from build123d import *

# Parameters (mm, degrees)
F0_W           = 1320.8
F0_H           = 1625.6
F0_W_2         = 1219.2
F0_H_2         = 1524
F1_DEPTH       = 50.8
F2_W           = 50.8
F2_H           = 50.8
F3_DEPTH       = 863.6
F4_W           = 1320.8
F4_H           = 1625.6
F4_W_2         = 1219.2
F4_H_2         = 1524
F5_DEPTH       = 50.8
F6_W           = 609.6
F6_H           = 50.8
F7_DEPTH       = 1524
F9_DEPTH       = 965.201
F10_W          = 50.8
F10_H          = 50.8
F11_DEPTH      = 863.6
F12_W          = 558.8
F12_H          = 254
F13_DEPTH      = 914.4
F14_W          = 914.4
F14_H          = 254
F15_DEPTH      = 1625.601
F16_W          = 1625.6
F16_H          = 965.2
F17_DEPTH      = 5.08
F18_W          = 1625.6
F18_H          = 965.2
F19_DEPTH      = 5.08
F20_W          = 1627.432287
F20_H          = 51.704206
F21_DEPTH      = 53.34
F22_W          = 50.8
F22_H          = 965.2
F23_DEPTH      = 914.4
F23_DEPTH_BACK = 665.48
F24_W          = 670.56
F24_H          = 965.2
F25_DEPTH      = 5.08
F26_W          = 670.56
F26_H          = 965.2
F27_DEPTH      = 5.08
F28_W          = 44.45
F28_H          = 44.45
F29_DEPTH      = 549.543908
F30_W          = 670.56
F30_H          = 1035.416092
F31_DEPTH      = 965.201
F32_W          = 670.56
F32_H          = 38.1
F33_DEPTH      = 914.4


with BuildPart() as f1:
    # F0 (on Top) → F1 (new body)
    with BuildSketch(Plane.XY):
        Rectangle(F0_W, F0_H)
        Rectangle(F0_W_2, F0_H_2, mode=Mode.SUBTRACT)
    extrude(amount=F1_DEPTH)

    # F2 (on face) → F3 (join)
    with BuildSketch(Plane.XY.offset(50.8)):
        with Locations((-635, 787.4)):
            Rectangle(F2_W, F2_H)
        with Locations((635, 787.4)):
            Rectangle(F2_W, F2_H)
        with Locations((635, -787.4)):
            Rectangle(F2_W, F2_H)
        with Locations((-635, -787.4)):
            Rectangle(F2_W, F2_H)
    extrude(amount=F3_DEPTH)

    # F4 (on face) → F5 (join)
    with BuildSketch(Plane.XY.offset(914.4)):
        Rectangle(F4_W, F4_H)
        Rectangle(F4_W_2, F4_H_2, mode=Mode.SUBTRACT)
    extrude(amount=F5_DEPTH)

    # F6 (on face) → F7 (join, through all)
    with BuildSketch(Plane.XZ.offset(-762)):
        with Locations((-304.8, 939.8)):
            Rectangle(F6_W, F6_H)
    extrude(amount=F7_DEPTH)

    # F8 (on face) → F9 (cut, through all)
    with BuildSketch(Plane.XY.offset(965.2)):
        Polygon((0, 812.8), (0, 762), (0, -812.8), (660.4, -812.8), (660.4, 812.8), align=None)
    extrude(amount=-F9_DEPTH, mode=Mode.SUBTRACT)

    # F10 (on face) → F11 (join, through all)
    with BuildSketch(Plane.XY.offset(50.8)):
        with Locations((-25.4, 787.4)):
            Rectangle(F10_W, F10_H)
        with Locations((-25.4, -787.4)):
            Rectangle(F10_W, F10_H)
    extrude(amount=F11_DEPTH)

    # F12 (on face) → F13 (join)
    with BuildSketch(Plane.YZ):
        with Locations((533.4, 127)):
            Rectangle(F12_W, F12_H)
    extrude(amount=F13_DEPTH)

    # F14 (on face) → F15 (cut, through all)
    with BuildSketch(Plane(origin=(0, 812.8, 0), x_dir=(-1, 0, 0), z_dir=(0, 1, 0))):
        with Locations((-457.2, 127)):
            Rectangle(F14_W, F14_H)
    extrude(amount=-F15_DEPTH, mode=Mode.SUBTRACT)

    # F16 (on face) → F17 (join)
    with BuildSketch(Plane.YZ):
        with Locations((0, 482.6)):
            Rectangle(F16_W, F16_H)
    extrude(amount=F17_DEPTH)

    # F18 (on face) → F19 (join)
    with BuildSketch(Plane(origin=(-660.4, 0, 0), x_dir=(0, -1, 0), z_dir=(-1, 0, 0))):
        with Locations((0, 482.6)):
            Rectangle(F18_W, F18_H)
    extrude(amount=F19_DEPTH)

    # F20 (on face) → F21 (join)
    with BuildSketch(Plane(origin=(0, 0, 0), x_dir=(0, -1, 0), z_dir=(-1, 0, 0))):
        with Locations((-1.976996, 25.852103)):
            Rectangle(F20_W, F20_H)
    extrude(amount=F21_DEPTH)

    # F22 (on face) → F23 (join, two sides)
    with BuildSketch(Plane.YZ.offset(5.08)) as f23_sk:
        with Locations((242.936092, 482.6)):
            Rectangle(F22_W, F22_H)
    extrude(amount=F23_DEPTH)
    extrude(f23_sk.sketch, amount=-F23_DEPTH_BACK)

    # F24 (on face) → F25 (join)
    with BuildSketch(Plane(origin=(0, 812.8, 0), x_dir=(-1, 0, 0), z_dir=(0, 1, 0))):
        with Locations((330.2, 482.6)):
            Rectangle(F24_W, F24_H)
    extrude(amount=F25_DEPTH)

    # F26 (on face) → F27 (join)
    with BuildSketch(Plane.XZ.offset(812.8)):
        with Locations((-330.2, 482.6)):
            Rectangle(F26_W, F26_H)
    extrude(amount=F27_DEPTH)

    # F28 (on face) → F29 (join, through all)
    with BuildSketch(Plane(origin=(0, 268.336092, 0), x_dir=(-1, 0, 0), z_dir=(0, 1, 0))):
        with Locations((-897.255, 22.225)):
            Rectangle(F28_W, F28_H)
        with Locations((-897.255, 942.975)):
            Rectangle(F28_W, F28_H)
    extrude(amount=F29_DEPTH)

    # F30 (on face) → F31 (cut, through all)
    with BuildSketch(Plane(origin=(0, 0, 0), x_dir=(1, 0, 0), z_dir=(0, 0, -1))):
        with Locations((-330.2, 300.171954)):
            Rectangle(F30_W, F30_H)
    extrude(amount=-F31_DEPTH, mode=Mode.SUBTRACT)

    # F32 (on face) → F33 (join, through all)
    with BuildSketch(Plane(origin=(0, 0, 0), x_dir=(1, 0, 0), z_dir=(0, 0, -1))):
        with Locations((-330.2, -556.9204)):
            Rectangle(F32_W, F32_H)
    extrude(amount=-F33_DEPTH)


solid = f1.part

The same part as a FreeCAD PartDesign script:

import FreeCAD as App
import Part
import Sketcher

V = App.Vector
Q = App.Units.Quantity

doc = App.newDocument("Part")
body = doc.addObject("PartDesign::Body", "Body")

sketch1 = body.newObject("Sketcher::SketchObject", "Sketch")
sketch1.AttachmentSupport = (doc.getObject("XY_Plane"), [""])
sketch1.MapMode = "FlatFace"
sketch1.addGeometry([
    Part.LineSegment(V(-660, 813, 0), V(-660, -813, 0)),
    Part.LineSegment(V(-660, -813, 0), V(660, -813, 0)),
    Part.LineSegment(V(660, -813, 0), V(660, 813, 0)),
    Part.LineSegment(V(660, 813, 0), V(-660, 813, 0)),
    Part.LineSegment(V(610, -762, 0), V(-610, -762, 0)),
    Part.LineSegment(V(-610, -762, 0), V(-610, 762, 0)),
    Part.LineSegment(V(-610, 762, 0), V(610, 762, 0)),
    Part.LineSegment(V(610, 762, 0), V(610, -762, 0)),
], False)
sketch1.addConstraint([
    Sketcher.Constraint("Coincident", 0, 2, 1, 1),
    Sketcher.Constraint("Coincident", 1, 2, 2, 1),
    Sketcher.Constraint("Coincident", 2, 2, 3, 1),
    Sketcher.Constraint("Coincident", 3, 2, 0, 1),
    Sketcher.Constraint("Coincident", 4, 2, 5, 1),
    Sketcher.Constraint("Coincident", 5, 2, 6, 1),
    Sketcher.Constraint("Coincident", 6, 2, 7, 1),
    Sketcher.Constraint("Coincident", 7, 2, 4, 1),
    Sketcher.Constraint("Vertical", 0),
    Sketcher.Constraint("Horizontal", 1),
    Sketcher.Constraint("Vertical", 2),
    Sketcher.Constraint("Horizontal", 3),
    Sketcher.Constraint("Horizontal", 4),
    Sketcher.Constraint("Vertical", 5),
    Sketcher.Constraint("Horizontal", 6),
    Sketcher.Constraint("Vertical", 7),
    Sketcher.Constraint("Symmetric", 0, 2, 2, 2, -1, 1),
    Sketcher.Constraint("Symmetric", 4, 2, 6, 2, -1, 1),
    Sketcher.Constraint("DistanceX", 1, 1, 1, 2, Q("52 in")),
    Sketcher.Constraint("DistanceX", 4, 2, 4, 1, Q("48 in")),
    Sketcher.Constraint("DistanceY", 0, 2, 0, 1, Q("64 in")),
    Sketcher.Constraint("DistanceY", 5, 1, 5, 2, Q("60 in")),
])
pad1 = body.newObject("PartDesign::Pad", "Pad")
pad1.Profile = sketch1
pad1.Length = Q("2 in")

sketch2 = body.newObject("Sketcher::SketchObject", "Sketch001")
sketch2.AttachmentSupport = (doc.getObject("XY_Plane"), [""])
sketch2.MapMode = "FlatFace"
sketch2.AttachmentOffset = App.Placement(V(0, 0, 2 * 25.4), App.Rotation())
sketch2.addGeometry([
    Part.LineSegment(V(-660, 813, 0), V(-660, 762, 0)),
    Part.LineSegment(V(-660, 762, 0), V(-610, 762, 0)),
    Part.LineSegment(V(-610, 762, 0), V(-610, 813, 0)),
    Part.LineSegment(V(-610, 813, 0), V(-660, 813, 0)),
    Part.LineSegment(V(610, 813, 0), V(610, 762, 0)),
    Part.LineSegment(V(610, 762, 0), V(660, 762, 0)),
    Part.LineSegment(V(660, 762, 0), V(660, 813, 0)),
    Part.LineSegment(V(660, 813, 0), V(610, 813, 0)),
    Part.LineSegment(V(610, -762, 0), V(610, -813, 0)),
    Part.LineSegment(V(610, -813, 0), V(660, -813, 0)),
    Part.LineSegment(V(660, -813, 0), V(660, -762, 0)),
    Part.LineSegment(V(660, -762, 0), V(610, -762, 0)),
    Part.LineSegment(V(-660, -762, 0), V(-660, -813, 0)),
    Part.LineSegment(V(-660, -813, 0), V(-610, -813, 0)),
    Part.LineSegment(V(-610, -813, 0), V(-610, -762, 0)),
    Part.LineSegment(V(-610, -762, 0), V(-660, -762, 0)),
], False)
sketch2.addConstraint([
    Sketcher.Constraint("Coincident", 0, 2, 1, 1),
    Sketcher.Constraint("Coincident", 1, 2, 2, 1),
    Sketcher.Constraint("Coincident", 2, 2, 3, 1),
    Sketcher.Constraint("Coincident", 3, 2, 0, 1),
    Sketcher.Constraint("Coincident", 4, 2, 5, 1),
    Sketcher.Constraint("Coincident", 5, 2, 6, 1),
    Sketcher.Constraint("Coincident", 6, 2, 7, 1),
    Sketcher.Constraint("Coincident", 7, 2, 4, 1),
    Sketcher.Constraint("Coincident", 8, 2, 9, 1),
    Sketcher.Constraint("Coincident", 9, 2, 10, 1),
    Sketcher.Constraint("Coincident", 10, 2, 11, 1),
    Sketcher.Constraint("Coincident", 11, 2, 8, 1),
    Sketcher.Constraint("Coincident", 12, 2, 13, 1),
    Sketcher.Constraint("Coincident", 13, 2, 14, 1),
    Sketcher.Constraint("Coincident", 14, 2, 15, 1),
    Sketcher.Constraint("Coincident", 15, 2, 12, 1),
    Sketcher.Constraint("Vertical", 0),
    Sketcher.Constraint("Horizontal", 1),
    Sketcher.Constraint("Vertical", 2),
    Sketcher.Constraint("Horizontal", 3),
    Sketcher.Constraint("Vertical", 4),
    Sketcher.Constraint("Horizontal", 5),
    Sketcher.Constraint("Vertical", 6),
    Sketcher.Constraint("Horizontal", 7),
    Sketcher.Constraint("Vertical", 8),
    Sketcher.Constraint("Horizontal", 9),
    Sketcher.Constraint("Vertical", 10),
    Sketcher.Constraint("Horizontal", 11),
    Sketcher.Constraint("Vertical", 12),
    Sketcher.Constraint("Horizontal", 13),
    Sketcher.Constraint("Vertical", 14),
    Sketcher.Constraint("Horizontal", 15),
    Sketcher.Constraint("Symmetric", 2, 2, 8, 2, -1, 1),
    Sketcher.Constraint("Symmetric", 0, 2, 10, 2, -1, 1),
    Sketcher.Constraint("Symmetric", 6, 2, 12, 2, -1, 1),
    Sketcher.Constraint("Symmetric", 4, 2, 14, 2, -1, 1),
    Sketcher.Constraint("Symmetric", 1, 2, 4, 2, -2),
    Sketcher.Constraint("Symmetric", 3, 2, 6, 2, -2),
    Sketcher.Constraint("Equal", 15, 0),
    Sketcher.Constraint("DistanceX", 1, 1, 1, 2, Q("2 in")),
    Sketcher.Constraint("DistanceX", 0, 2, -1, 1, Q("26 in")),
    Sketcher.Constraint("DistanceY", -1, 1, 0, 2, Q("30 in")),
])
pad2 = body.newObject("PartDesign::Pad", "Pad001")
pad2.Profile = sketch2
pad2.Length = Q("34 in")

sketch3 = body.newObject("Sketcher::SketchObject", "Sketch002")
sketch3.AttachmentSupport = (doc.getObject("XY_Plane"), [""])
sketch3.MapMode = "FlatFace"
sketch3.AttachmentOffset = App.Placement(V(0, 0, 36 * 25.4), App.Rotation())
sketch3.addGeometry([
    Part.LineSegment(V(-660, 813, 0), V(-660, -813, 0)),
    Part.LineSegment(V(-660, -813, 0), V(660, -813, 0)),
    Part.LineSegment(V(660, -813, 0), V(660, 813, 0)),
    Part.LineSegment(V(660, 813, 0), V(-660, 813, 0)),
    Part.LineSegment(V(610, -762, 0), V(-610, -762, 0)),
    Part.LineSegment(V(-610, -762, 0), V(-610, 762, 0)),
    Part.LineSegment(V(-610, 762, 0), V(610, 762, 0)),
    Part.LineSegment(V(610, 762, 0), V(610, -762, 0)),
], False)
sketch3.addConstraint([
    Sketcher.Constraint("Coincident", 0, 2, 1, 1),
    Sketcher.Constraint("Coincident", 1, 2, 2, 1),
    Sketcher.Constraint("Coincident", 2, 2, 3, 1),
    Sketcher.Constraint("Coincident", 3, 2, 0, 1),
    Sketcher.Constraint("Coincident", 4, 2, 5, 1),
    Sketcher.Constraint("Coincident", 5, 2, 6, 1),
    Sketcher.Constraint("Coincident", 6, 2, 7, 1),
    Sketcher.Constraint("Coincident", 7, 2, 4, 1),
    Sketcher.Constraint("Vertical", 0),
    Sketcher.Constraint("Horizontal", 1),
    Sketcher.Constraint("Vertical", 2),
    Sketcher.Constraint("Horizontal", 3),
    Sketcher.Constraint("Horizontal", 4),
    Sketcher.Constraint("Vertical", 5),
    Sketcher.Constraint("Horizontal", 6),
    Sketcher.Constraint("Vertical", 7),
    Sketcher.Constraint("Symmetric", 0, 2, 2, 2, -1, 1),
    Sketcher.Constraint("Symmetric", 4, 2, 6, 2, -1, 1),
    Sketcher.Constraint("DistanceX", 1, 1, 1, 2, Q("52 in")),
    Sketcher.Constraint("DistanceX", 4, 2, 4, 1, Q("48 in")),
    Sketcher.Constraint("DistanceY", 0, 2, 0, 1, Q("64 in")),
    Sketcher.Constraint("DistanceY", 5, 1, 5, 2, Q("60 in")),
])
pad3 = body.newObject("PartDesign::Pad", "Pad002")
pad3.Profile = sketch3
pad3.Length = Q("2 in")

sketch4 = body.newObject("Sketcher::SketchObject", "Sketch003")
sketch4.AttachmentSupport = (doc.getObject("XZ_Plane"), [""])
sketch4.MapMode = "FlatFace"
sketch4.AttachmentOffset = App.Placement(V(0, 0, -30 * 25.4), App.Rotation())
sketch4.addGeometry([
    Part.LineSegment(V(-610, 965, 0), V(-610, 914, 0)),
    Part.LineSegment(V(-610, 914, 0), V(0, 914, 0)),
    Part.LineSegment(V(0, 914, 0), V(0, 965, 0)),
    Part.LineSegment(V(0, 965, 0), V(-610, 965, 0)),
], False)
sketch4.addConstraint([
    Sketcher.Constraint("Coincident", 0, 2, 1, 1),
    Sketcher.Constraint("Coincident", 1, 2, 2, 1),
    Sketcher.Constraint("Coincident", 2, 2, 3, 1),
    Sketcher.Constraint("Coincident", 3, 2, 0, 1),
    Sketcher.Constraint("Vertical", 0),
    Sketcher.Constraint("Horizontal", 1),
    Sketcher.Constraint("Vertical", 2),
    Sketcher.Constraint("Horizontal", 3),
    Sketcher.Constraint("PointOnObject", 1, 2, -2),
    Sketcher.Constraint("DistanceX", 1, 1, 1, 2, Q("24 in")),
    Sketcher.Constraint("DistanceY", 0, 2, 0, 1, Q("2 in")),
    Sketcher.Constraint("DistanceY", -1, 1, 0, 2, Q("36 in")),
])
pad4 = body.newObject("PartDesign::Pad", "Pad003")
pad4.Profile = sketch4
pad4.Type = "UpToLast"

sketch5 = body.newObject("Sketcher::SketchObject", "Sketch004")
sketch5.AttachmentSupport = (doc.getObject("XY_Plane"), [""])
sketch5.MapMode = "FlatFace"
sketch5.AttachmentOffset = App.Placement(V(0, 0, 38 * 25.4), App.Rotation())
sketch5.addGeometry([
    Part.LineSegment(V(0, 813, 0), V(0, -813, 0)),
    Part.LineSegment(V(0, -813, 0), V(660, -813, 0)),
    Part.LineSegment(V(660, -813, 0), V(660, 813, 0)),
    Part.LineSegment(V(660, 813, 0), V(0, 813, 0)),
], False)
sketch5.addConstraint([
    Sketcher.Constraint("Coincident", 0, 2, 1, 1),
    Sketcher.Constraint("Coincident", 1, 2, 2, 1),
    Sketcher.Constraint("Coincident", 2, 2, 3, 1),
    Sketcher.Constraint("Coincident", 3, 2, 0, 1),
    Sketcher.Constraint("Vertical", 0),
    Sketcher.Constraint("Horizontal", 1),
    Sketcher.Constraint("Vertical", 2),
    Sketcher.Constraint("Horizontal", 3),
    Sketcher.Constraint("Symmetric", 0, 2, 3, 2, -1, 1),
    Sketcher.Constraint("DistanceX", 1, 1, 1, 2, Q("26 in")),
    Sketcher.Constraint("DistanceY", 0, 2, 0, 1, Q("64 in")),
])
pocket1 = body.newObject("PartDesign::Pocket", "Pocket")
pocket1.Profile = sketch5
pocket1.Type = "ThroughAll"

sketch6 = body.newObject("Sketcher::SketchObject", "Sketch005")
sketch6.AttachmentSupport = (doc.getObject("XY_Plane"), [""])
sketch6.MapMode = "FlatFace"
sketch6.AttachmentOffset = App.Placement(V(0, 0, 2 * 25.4), App.Rotation())
sketch6.addGeometry([
    Part.LineSegment(V(-51, 813, 0), V(-51, 762, 0)),
    Part.LineSegment(V(-51, 762, 0), V(0, 762, 0)),
    Part.LineSegment(V(0, 762, 0), V(0, 813, 0)),
    Part.LineSegment(V(0, 813, 0), V(-51, 813, 0)),
    Part.LineSegment(V(-51, -762, 0), V(-51, -813, 0)),
    Part.LineSegment(V(-51, -813, 0), V(0, -813, 0)),
    Part.LineSegment(V(0, -813, 0), V(0, -762, 0)),
    Part.LineSegment(V(0, -762, 0), V(-51, -762, 0)),
], False)
sketch6.addConstraint([
    Sketcher.Constraint("Coincident", 0, 2, 1, 1),
    Sketcher.Constraint("Coincident", 1, 2, 2, 1),
    Sketcher.Constraint("Coincident", 2, 2, 3, 1),
    Sketcher.Constraint("Coincident", 3, 2, 0, 1),
    Sketcher.Constraint("Coincident", 4, 2, 5, 1),
    Sketcher.Constraint("Coincident", 5, 2, 6, 1),
    Sketcher.Constraint("Coincident", 6, 2, 7, 1),
    Sketcher.Constraint("Coincident", 7, 2, 4, 1),
    Sketcher.Constraint("Vertical", 0),
    Sketcher.Constraint("Horizontal", 1),
    Sketcher.Constraint("Vertical", 2),
    Sketcher.Constraint("Horizontal", 3),
    Sketcher.Constraint("Vertical", 4),
    Sketcher.Constraint("Horizontal", 5),
    Sketcher.Constraint("Vertical", 6),
    Sketcher.Constraint("Horizontal", 7),
    Sketcher.Constraint("Symmetric", 2, 2, 5, 2, -1, 1),
    Sketcher.Constraint("Symmetric", 1, 2, 6, 2, -1),
    Sketcher.Constraint("Vertical", 3, 2, 4, 2),
    Sketcher.Constraint("Equal", 7, 0),
    Sketcher.Constraint("DistanceX", 1, 1, 1, 2, Q("2 in")),
    Sketcher.Constraint("DistanceY", -1, 1, 0, 2, Q("30 in")),
])
pad5 = body.newObject("PartDesign::Pad", "Pad004")
pad5.Profile = sketch6
pad5.Type = "UpToLast"

sketch7 = body.newObject("Sketcher::SketchObject", "Sketch006")
sketch7.AttachmentSupport = (doc.getObject("YZ_Plane"), [""])
sketch7.MapMode = "FlatFace"
sketch7.addGeometry([
    Part.LineSegment(V(254, 254, 0), V(254, 0, 0)),
    Part.LineSegment(V(254, 0, 0), V(813, 0, 0)),
    Part.LineSegment(V(813, 0, 0), V(813, 254, 0)),
    Part.LineSegment(V(813, 254, 0), V(254, 254, 0)),
], False)
sketch7.addConstraint([
    Sketcher.Constraint("Coincident", 0, 2, 1, 1),
    Sketcher.Constraint("Coincident", 1, 2, 2, 1),
    Sketcher.Constraint("Coincident", 2, 2, 3, 1),
    Sketcher.Constraint("Coincident", 3, 2, 0, 1),
    Sketcher.Constraint("Vertical", 0),
    Sketcher.Constraint("Horizontal", 1),
    Sketcher.Constraint("Vertical", 2),
    Sketcher.Constraint("Horizontal", 3),
    Sketcher.Constraint("PointOnObject", 0, 2, -1),
    Sketcher.Constraint("DistanceX", 1, 1, 1, 2, Q("22 in")),
    Sketcher.Constraint("DistanceY", 0, 2, 0, 1, Q("10 in")),
    Sketcher.Constraint("DistanceX", -1, 1, 0, 2, Q("10 in")),
])
pad6 = body.newObject("PartDesign::Pad", "Pad005")
pad6.Profile = sketch7
pad6.Length = Q("36 in")

sketch8 = body.newObject("Sketcher::SketchObject", "Sketch007")
sketch8.AttachmentSupport = (doc.getObject("XZ_Plane"), [""])
sketch8.MapMode = "FlatFace"
sketch8.AttachmentOffset = App.Placement(V(0, 0, -32 * 25.4), App.Rotation())
sketch8.addGeometry([
    Part.LineSegment(V(914, 254, 0), V(914, 0, 0)),
    Part.LineSegment(V(914, 0, 0), V(0, 0, 0)),
    Part.LineSegment(V(0, 0, 0), V(0, 254, 0)),
    Part.LineSegment(V(0, 254, 0), V(914, 254, 0)),
], False)
sketch8.addConstraint([
    Sketcher.Constraint("Coincident", 0, 2, 1, 1),
    Sketcher.Constraint("Coincident", 1, 2, 2, 1),
    Sketcher.Constraint("Coincident", 2, 2, 3, 1),
    Sketcher.Constraint("Coincident", 3, 2, 0, 1),
    Sketcher.Constraint("Vertical", 0),
    Sketcher.Constraint("Horizontal", 1),
    Sketcher.Constraint("Vertical", 2),
    Sketcher.Constraint("Horizontal", 3),
    Sketcher.Constraint("Coincident", 1, 2, -1, 1),
    Sketcher.Constraint("DistanceX", 1, 2, 1, 1, Q("36 in")),
    Sketcher.Constraint("DistanceY", 0, 2, 0, 1, Q("10 in")),
])
pocket2 = body.newObject("PartDesign::Pocket", "Pocket001")
pocket2.Profile = sketch8
pocket2.Type = "ThroughAll"
pocket2.Reversed = True

sketch9 = body.newObject("Sketcher::SketchObject", "Sketch008")
sketch9.AttachmentSupport = (doc.getObject("YZ_Plane"), [""])
sketch9.MapMode = "FlatFace"
sketch9.addGeometry([
    Part.LineSegment(V(-813, 965, 0), V(-813, 0, 0)),
    Part.LineSegment(V(-813, 0, 0), V(813, 0, 0)),
    Part.LineSegment(V(813, 0, 0), V(813, 965, 0)),
    Part.LineSegment(V(813, 965, 0), V(-813, 965, 0)),
], False)
sketch9.addConstraint([
    Sketcher.Constraint("Coincident", 0, 2, 1, 1),
    Sketcher.Constraint("Coincident", 1, 2, 2, 1),
    Sketcher.Constraint("Coincident", 2, 2, 3, 1),
    Sketcher.Constraint("Coincident", 3, 2, 0, 1),
    Sketcher.Constraint("Vertical", 0),
    Sketcher.Constraint("Horizontal", 1),
    Sketcher.Constraint("Vertical", 2),
    Sketcher.Constraint("Horizontal", 3),
    Sketcher.Constraint("Symmetric", 0, 2, 1, 2, -1, 1),
    Sketcher.Constraint("DistanceX", 1, 1, 1, 2, Q("64 in")),
    Sketcher.Constraint("DistanceY", 0, 2, 0, 1, Q("38 in")),
])
pad7 = body.newObject("PartDesign::Pad", "Pad006")
pad7.Profile = sketch9
pad7.Length = Q("0.2 in")

sketch10 = body.newObject("Sketcher::SketchObject", "Sketch009")
sketch10.AttachmentSupport = (doc.getObject("YZ_Plane"), [""])
sketch10.MapMode = "FlatFace"
sketch10.AttachmentOffset = App.Placement(V(0, 0, -26 * 25.4), App.Rotation())
sketch10.addGeometry([
    Part.LineSegment(V(813, 965, 0), V(813, 0, 0)),
    Part.LineSegment(V(813, 0, 0), V(-813, 0, 0)),
    Part.LineSegment(V(-813, 0, 0), V(-813, 965, 0)),
    Part.LineSegment(V(-813, 965, 0), V(813, 965, 0)),
], False)
sketch10.addConstraint([
    Sketcher.Constraint("Coincident", 0, 2, 1, 1),
    Sketcher.Constraint("Coincident", 1, 2, 2, 1),
    Sketcher.Constraint("Coincident", 2, 2, 3, 1),
    Sketcher.Constraint("Coincident", 3, 2, 0, 1),
    Sketcher.Constraint("Vertical", 0),
    Sketcher.Constraint("Horizontal", 1),
    Sketcher.Constraint("Vertical", 2),
    Sketcher.Constraint("Horizontal", 3),
    Sketcher.Constraint("Symmetric", 0, 2, 1, 2, -1, 1),
    Sketcher.Constraint("DistanceX", 1, 2, 1, 1, Q("64 in")),
    Sketcher.Constraint("DistanceY", 0, 2, 0, 1, Q("38 in")),
])
pad8 = body.newObject("PartDesign::Pad", "Pad007")
pad8.Profile = sketch10
pad8.Length = Q("0.2 in")
pad8.Reversed = True

sketch11 = body.newObject("Sketcher::SketchObject", "Sketch010")
sketch11.AttachmentSupport = (doc.getObject("YZ_Plane"), [""])
sketch11.MapMode = "FlatFace"
sketch11.addGeometry([
    Part.LineSegment(V(816, 52, 0), V(816, 0, 0)),
    Part.LineSegment(V(816, 0, 0), V(-812, 0, 0)),
    Part.LineSegment(V(-812, 0, 0), V(-812, 52, 0)),
    Part.LineSegment(V(-812, 52, 0), V(816, 52, 0)),
], False)
sketch11.addConstraint([
    Sketcher.Constraint("Coincident", 0, 2, 1, 1),
    Sketcher.Constraint("Coincident", 1, 2, 2, 1),
    Sketcher.Constraint("Coincident", 2, 2, 3, 1),
    Sketcher.Constraint("Coincident", 3, 2, 0, 1),
    Sketcher.Constraint("Vertical", 0),
    Sketcher.Constraint("Horizontal", 1),
    Sketcher.Constraint("Vertical", 2),
    Sketcher.Constraint("Horizontal", 3),
    Sketcher.Constraint("PointOnObject", 0, 2, -1),
    Sketcher.Constraint("DistanceX", 1, 2, 1, 1, 1627.432287),
    Sketcher.Constraint("DistanceY", 0, 2, 0, 1, 51.704206),
    Sketcher.Constraint("DistanceX", -1, 1, 0, 2, 815.69314),
])
pad9 = body.newObject("PartDesign::Pad", "Pad008")
pad9.Profile = sketch11
pad9.Length = Q("2.1 in")
pad9.Reversed = True

sketch12 = body.newObject("Sketcher::SketchObject", "Sketch011")
sketch12.AttachmentSupport = (doc.getObject("YZ_Plane"), [""])
sketch12.MapMode = "FlatFace"
sketch12.AttachmentOffset = App.Placement(V(0, 0, 0.2 * 25.4), App.Rotation())
sketch12.addGeometry([
    Part.LineSegment(V(218, 965, 0), V(218, 0, 0)),
    Part.LineSegment(V(218, 0, 0), V(268, 0, 0)),
    Part.LineSegment(V(268, 0, 0), V(268, 965, 0)),
    Part.LineSegment(V(268, 965, 0), V(218, 965, 0)),
], False)
sketch12.addConstraint([
    Sketcher.Constraint("Coincident", 0, 2, 1, 1),
    Sketcher.Constraint("Coincident", 1, 2, 2, 1),
    Sketcher.Constraint("Coincident", 2, 2, 3, 1),
    Sketcher.Constraint("Coincident", 3, 2, 0, 1),
    Sketcher.Constraint("Vertical", 0),
    Sketcher.Constraint("Horizontal", 1),
    Sketcher.Constraint("Vertical", 2),
    Sketcher.Constraint("Horizontal", 3),
    Sketcher.Constraint("PointOnObject", 0, 2, -1),
    Sketcher.Constraint("DistanceX", 1, 1, 1, 2, Q("2 in")),
    Sketcher.Constraint("DistanceY", 0, 2, 0, 1, Q("38 in")),
    Sketcher.Constraint("DistanceX", -1, 1, 0, 2, 217.536092),
])
pad10 = body.newObject("PartDesign::Pad", "Pad009")
pad10.Profile = sketch12
pad10.Type = "TwoLengths"
pad10.Length = Q("36 in")
pad10.Length2 = Q("26.2 in")

sketch13 = body.newObject("Sketcher::SketchObject", "Sketch012")
sketch13.AttachmentSupport = (doc.getObject("XZ_Plane"), [""])
sketch13.MapMode = "FlatFace"
sketch13.AttachmentOffset = App.Placement(V(0, 0, -32 * 25.4), App.Rotation())
sketch13.addGeometry([
    Part.LineSegment(V(5, 965, 0), V(5, 0, 0)),
    Part.LineSegment(V(5, 0, 0), V(-665, 0, 0)),
    Part.LineSegment(V(-665, 0, 0), V(-665, 965, 0)),
    Part.LineSegment(V(-665, 965, 0), V(5, 965, 0)),
], False)
sketch13.addConstraint([
    Sketcher.Constraint("Coincident", 0, 2, 1, 1),
    Sketcher.Constraint("Coincident", 1, 2, 2, 1),
    Sketcher.Constraint("Coincident", 2, 2, 3, 1),
    Sketcher.Constraint("Coincident", 3, 2, 0, 1),
    Sketcher.Constraint("Vertical", 0),
    Sketcher.Constraint("Horizontal", 1),
    Sketcher.Constraint("Vertical", 2),
    Sketcher.Constraint("Horizontal", 3),
    Sketcher.Constraint("PointOnObject", 0, 2, -1),
    Sketcher.Constraint("DistanceY", 0, 2, 0, 1, Q("38 in")),
    Sketcher.Constraint("DistanceX", 1, 2, 1, 1, Q("26.4 in")),
    Sketcher.Constraint("DistanceX", -1, 1, 0, 2, Q("0.2 in")),
])
pad11 = body.newObject("PartDesign::Pad", "Pad010")
pad11.Profile = sketch13
pad11.Length = Q("0.2 in")
pad11.Reversed = True

sketch14 = body.newObject("Sketcher::SketchObject", "Sketch013")
sketch14.AttachmentSupport = (doc.getObject("XZ_Plane"), [""])
sketch14.MapMode = "FlatFace"
sketch14.AttachmentOffset = App.Placement(V(0, 0, 32 * 25.4), App.Rotation())
sketch14.addGeometry([
    Part.LineSegment(V(-665, 965, 0), V(-665, 0, 0)),
    Part.LineSegment(V(-665, 0, 0), V(5, 0, 0)),
    Part.LineSegment(V(5, 0, 0), V(5, 965, 0)),
    Part.LineSegment(V(5, 965, 0), V(-665, 965, 0)),
], False)
sketch14.addConstraint([
    Sketcher.Constraint("Coincident", 0, 2, 1, 1),
    Sketcher.Constraint("Coincident", 1, 2, 2, 1),
    Sketcher.Constraint("Coincident", 2, 2, 3, 1),
    Sketcher.Constraint("Coincident", 3, 2, 0, 1),
    Sketcher.Constraint("Vertical", 0),
    Sketcher.Constraint("Horizontal", 1),
    Sketcher.Constraint("Vertical", 2),
    Sketcher.Constraint("Horizontal", 3),
    Sketcher.Constraint("PointOnObject", 0, 2, -1),
    Sketcher.Constraint("DistanceY", 0, 2, 0, 1, Q("38 in")),
    Sketcher.Constraint("DistanceX", 1, 1, 1, 2, Q("26.4 in")),
    Sketcher.Constraint("DistanceX", 0, 2, -1, 1, Q("26.2 in")),
])
pad12 = body.newObject("PartDesign::Pad", "Pad011")
pad12.Profile = sketch14
pad12.Length = Q("0.2 in")

sketch15 = body.newObject("Sketcher::SketchObject", "Sketch014")
sketch15.AttachmentSupport = (doc.getObject("XZ_Plane"), [""])
sketch15.MapMode = "FlatFace"
sketch15.AttachmentOffset = App.Placement(V(0, 0, -268.336092), App.Rotation())
sketch15.addGeometry([
    Part.LineSegment(V(919, 44, 0), V(919, 0, 0)),
    Part.LineSegment(V(919, 0, 0), V(875, 0, 0)),
    Part.LineSegment(V(875, 0, 0), V(875, 44, 0)),
    Part.LineSegment(V(875, 44, 0), V(919, 44, 0)),
    Part.LineSegment(V(919, 965, 0), V(919, 921, 0)),
    Part.LineSegment(V(919, 921, 0), V(875, 921, 0)),
    Part.LineSegment(V(875, 921, 0), V(875, 965, 0)),
    Part.LineSegment(V(875, 965, 0), V(919, 965, 0)),
], False)
sketch15.addConstraint([
    Sketcher.Constraint("Coincident", 0, 2, 1, 1),
    Sketcher.Constraint("Coincident", 1, 2, 2, 1),
    Sketcher.Constraint("Coincident", 2, 2, 3, 1),
    Sketcher.Constraint("Coincident", 3, 2, 0, 1),
    Sketcher.Constraint("Coincident", 4, 2, 5, 1),
    Sketcher.Constraint("Coincident", 5, 2, 6, 1),
    Sketcher.Constraint("Coincident", 6, 2, 7, 1),
    Sketcher.Constraint("Coincident", 7, 2, 4, 1),
    Sketcher.Constraint("Vertical", 0),
    Sketcher.Constraint("Horizontal", 1),
    Sketcher.Constraint("Vertical", 2),
    Sketcher.Constraint("Horizontal", 3),
    Sketcher.Constraint("Vertical", 4),
    Sketcher.Constraint("Horizontal", 5),
    Sketcher.Constraint("Vertical", 6),
    Sketcher.Constraint("Horizontal", 7),
    Sketcher.Constraint("PointOnObject", 0, 2, -1),
    Sketcher.Constraint("Vertical", 3, 2, 4, 2),
    Sketcher.Constraint("Vertical", 2, 2, 5, 2),
    Sketcher.Constraint("Equal", 7, 0),
    Sketcher.Constraint("Equal", 2, 4),
    Sketcher.Constraint("DistanceY", -1, 1, 6, 2, Q("38 in")),
    Sketcher.Constraint("DistanceX", 1, 2, 1, 1, Q("1.75 in")),
    Sketcher.Constraint("DistanceX", -1, 1, 0, 2, Q("36.2 in")),
])
pad13 = body.newObject("PartDesign::Pad", "Pad012")
pad13.Profile = sketch15
pad13.Length = 549.543908
pad13.Reversed = True

sketch16 = body.newObject("Sketcher::SketchObject", "Sketch015")
sketch16.AttachmentSupport = (doc.getObject("XY_Plane"), [""])
sketch16.MapMode = "FlatFace"
sketch16.addGeometry([
    Part.LineSegment(V(-665, -818, 0), V(-665, 218, 0)),
    Part.LineSegment(V(-665, 218, 0), V(5, 218, 0)),
    Part.LineSegment(V(5, 218, 0), V(5, -818, 0)),
    Part.LineSegment(V(5, -818, 0), V(-665, -818, 0)),
], False)
sketch16.addConstraint([
    Sketcher.Constraint("Coincident", 0, 2, 1, 1),
    Sketcher.Constraint("Coincident", 1, 2, 2, 1),
    Sketcher.Constraint("Coincident", 2, 2, 3, 1),
    Sketcher.Constraint("Coincident", 3, 2, 0, 1),
    Sketcher.Constraint("Vertical", 0),
    Sketcher.Constraint("Horizontal", 1),
    Sketcher.Constraint("Vertical", 2),
    Sketcher.Constraint("Horizontal", 3),
    Sketcher.Constraint("DistanceX", 1, 1, 1, 2, Q("26.4 in")),
    Sketcher.Constraint("DistanceX", 0, 2, -1, 1, Q("26.2 in")),
    Sketcher.Constraint("DistanceY", 2, 2, -1, 1, Q("32.2 in")),
    Sketcher.Constraint("DistanceY", 0, 1, 0, 2, 1035.416092),
])
pocket3 = body.newObject("PartDesign::Pocket", "Pocket002")
pocket3.Profile = sketch16
pocket3.Type = "ThroughAll"
pocket3.Reversed = True

sketch17 = body.newObject("Sketcher::SketchObject", "Sketch016")
sketch17.AttachmentSupport = (doc.getObject("XY_Plane"), [""])
sketch17.MapMode = "FlatFace"
sketch17.addGeometry([
    Part.LineSegment(V(-665, 538, 0), V(-665, 576, 0)),
    Part.LineSegment(V(-665, 576, 0), V(5, 576, 0)),
    Part.LineSegment(V(5, 576, 0), V(5, 538, 0)),
    Part.LineSegment(V(5, 538, 0), V(-665, 538, 0)),
], False)
sketch17.addConstraint([
    Sketcher.Constraint("Coincident", 0, 2, 1, 1),
    Sketcher.Constraint("Coincident", 1, 2, 2, 1),
    Sketcher.Constraint("Coincident", 2, 2, 3, 1),
    Sketcher.Constraint("Coincident", 3, 2, 0, 1),
    Sketcher.Constraint("Vertical", 0),
    Sketcher.Constraint("Horizontal", 1),
    Sketcher.Constraint("Vertical", 2),
    Sketcher.Constraint("Horizontal", 3),
    Sketcher.Constraint("DistanceX", 1, 1, 1, 2, Q("26.4 in")),
    Sketcher.Constraint("DistanceY", 0, 1, 0, 2, Q("1.5 in")),
    Sketcher.Constraint("DistanceX", 0, 2, -1, 1, Q("26.2 in")),
    Sketcher.Constraint("DistanceY", -1, 1, 0, 2, Q("22.676 in")),
])
pad14 = body.newObject("PartDesign::Pad", "Pad013")
pad14.Profile = sketch17
pad14.Type = "UpToLast"

doc.recompute()
